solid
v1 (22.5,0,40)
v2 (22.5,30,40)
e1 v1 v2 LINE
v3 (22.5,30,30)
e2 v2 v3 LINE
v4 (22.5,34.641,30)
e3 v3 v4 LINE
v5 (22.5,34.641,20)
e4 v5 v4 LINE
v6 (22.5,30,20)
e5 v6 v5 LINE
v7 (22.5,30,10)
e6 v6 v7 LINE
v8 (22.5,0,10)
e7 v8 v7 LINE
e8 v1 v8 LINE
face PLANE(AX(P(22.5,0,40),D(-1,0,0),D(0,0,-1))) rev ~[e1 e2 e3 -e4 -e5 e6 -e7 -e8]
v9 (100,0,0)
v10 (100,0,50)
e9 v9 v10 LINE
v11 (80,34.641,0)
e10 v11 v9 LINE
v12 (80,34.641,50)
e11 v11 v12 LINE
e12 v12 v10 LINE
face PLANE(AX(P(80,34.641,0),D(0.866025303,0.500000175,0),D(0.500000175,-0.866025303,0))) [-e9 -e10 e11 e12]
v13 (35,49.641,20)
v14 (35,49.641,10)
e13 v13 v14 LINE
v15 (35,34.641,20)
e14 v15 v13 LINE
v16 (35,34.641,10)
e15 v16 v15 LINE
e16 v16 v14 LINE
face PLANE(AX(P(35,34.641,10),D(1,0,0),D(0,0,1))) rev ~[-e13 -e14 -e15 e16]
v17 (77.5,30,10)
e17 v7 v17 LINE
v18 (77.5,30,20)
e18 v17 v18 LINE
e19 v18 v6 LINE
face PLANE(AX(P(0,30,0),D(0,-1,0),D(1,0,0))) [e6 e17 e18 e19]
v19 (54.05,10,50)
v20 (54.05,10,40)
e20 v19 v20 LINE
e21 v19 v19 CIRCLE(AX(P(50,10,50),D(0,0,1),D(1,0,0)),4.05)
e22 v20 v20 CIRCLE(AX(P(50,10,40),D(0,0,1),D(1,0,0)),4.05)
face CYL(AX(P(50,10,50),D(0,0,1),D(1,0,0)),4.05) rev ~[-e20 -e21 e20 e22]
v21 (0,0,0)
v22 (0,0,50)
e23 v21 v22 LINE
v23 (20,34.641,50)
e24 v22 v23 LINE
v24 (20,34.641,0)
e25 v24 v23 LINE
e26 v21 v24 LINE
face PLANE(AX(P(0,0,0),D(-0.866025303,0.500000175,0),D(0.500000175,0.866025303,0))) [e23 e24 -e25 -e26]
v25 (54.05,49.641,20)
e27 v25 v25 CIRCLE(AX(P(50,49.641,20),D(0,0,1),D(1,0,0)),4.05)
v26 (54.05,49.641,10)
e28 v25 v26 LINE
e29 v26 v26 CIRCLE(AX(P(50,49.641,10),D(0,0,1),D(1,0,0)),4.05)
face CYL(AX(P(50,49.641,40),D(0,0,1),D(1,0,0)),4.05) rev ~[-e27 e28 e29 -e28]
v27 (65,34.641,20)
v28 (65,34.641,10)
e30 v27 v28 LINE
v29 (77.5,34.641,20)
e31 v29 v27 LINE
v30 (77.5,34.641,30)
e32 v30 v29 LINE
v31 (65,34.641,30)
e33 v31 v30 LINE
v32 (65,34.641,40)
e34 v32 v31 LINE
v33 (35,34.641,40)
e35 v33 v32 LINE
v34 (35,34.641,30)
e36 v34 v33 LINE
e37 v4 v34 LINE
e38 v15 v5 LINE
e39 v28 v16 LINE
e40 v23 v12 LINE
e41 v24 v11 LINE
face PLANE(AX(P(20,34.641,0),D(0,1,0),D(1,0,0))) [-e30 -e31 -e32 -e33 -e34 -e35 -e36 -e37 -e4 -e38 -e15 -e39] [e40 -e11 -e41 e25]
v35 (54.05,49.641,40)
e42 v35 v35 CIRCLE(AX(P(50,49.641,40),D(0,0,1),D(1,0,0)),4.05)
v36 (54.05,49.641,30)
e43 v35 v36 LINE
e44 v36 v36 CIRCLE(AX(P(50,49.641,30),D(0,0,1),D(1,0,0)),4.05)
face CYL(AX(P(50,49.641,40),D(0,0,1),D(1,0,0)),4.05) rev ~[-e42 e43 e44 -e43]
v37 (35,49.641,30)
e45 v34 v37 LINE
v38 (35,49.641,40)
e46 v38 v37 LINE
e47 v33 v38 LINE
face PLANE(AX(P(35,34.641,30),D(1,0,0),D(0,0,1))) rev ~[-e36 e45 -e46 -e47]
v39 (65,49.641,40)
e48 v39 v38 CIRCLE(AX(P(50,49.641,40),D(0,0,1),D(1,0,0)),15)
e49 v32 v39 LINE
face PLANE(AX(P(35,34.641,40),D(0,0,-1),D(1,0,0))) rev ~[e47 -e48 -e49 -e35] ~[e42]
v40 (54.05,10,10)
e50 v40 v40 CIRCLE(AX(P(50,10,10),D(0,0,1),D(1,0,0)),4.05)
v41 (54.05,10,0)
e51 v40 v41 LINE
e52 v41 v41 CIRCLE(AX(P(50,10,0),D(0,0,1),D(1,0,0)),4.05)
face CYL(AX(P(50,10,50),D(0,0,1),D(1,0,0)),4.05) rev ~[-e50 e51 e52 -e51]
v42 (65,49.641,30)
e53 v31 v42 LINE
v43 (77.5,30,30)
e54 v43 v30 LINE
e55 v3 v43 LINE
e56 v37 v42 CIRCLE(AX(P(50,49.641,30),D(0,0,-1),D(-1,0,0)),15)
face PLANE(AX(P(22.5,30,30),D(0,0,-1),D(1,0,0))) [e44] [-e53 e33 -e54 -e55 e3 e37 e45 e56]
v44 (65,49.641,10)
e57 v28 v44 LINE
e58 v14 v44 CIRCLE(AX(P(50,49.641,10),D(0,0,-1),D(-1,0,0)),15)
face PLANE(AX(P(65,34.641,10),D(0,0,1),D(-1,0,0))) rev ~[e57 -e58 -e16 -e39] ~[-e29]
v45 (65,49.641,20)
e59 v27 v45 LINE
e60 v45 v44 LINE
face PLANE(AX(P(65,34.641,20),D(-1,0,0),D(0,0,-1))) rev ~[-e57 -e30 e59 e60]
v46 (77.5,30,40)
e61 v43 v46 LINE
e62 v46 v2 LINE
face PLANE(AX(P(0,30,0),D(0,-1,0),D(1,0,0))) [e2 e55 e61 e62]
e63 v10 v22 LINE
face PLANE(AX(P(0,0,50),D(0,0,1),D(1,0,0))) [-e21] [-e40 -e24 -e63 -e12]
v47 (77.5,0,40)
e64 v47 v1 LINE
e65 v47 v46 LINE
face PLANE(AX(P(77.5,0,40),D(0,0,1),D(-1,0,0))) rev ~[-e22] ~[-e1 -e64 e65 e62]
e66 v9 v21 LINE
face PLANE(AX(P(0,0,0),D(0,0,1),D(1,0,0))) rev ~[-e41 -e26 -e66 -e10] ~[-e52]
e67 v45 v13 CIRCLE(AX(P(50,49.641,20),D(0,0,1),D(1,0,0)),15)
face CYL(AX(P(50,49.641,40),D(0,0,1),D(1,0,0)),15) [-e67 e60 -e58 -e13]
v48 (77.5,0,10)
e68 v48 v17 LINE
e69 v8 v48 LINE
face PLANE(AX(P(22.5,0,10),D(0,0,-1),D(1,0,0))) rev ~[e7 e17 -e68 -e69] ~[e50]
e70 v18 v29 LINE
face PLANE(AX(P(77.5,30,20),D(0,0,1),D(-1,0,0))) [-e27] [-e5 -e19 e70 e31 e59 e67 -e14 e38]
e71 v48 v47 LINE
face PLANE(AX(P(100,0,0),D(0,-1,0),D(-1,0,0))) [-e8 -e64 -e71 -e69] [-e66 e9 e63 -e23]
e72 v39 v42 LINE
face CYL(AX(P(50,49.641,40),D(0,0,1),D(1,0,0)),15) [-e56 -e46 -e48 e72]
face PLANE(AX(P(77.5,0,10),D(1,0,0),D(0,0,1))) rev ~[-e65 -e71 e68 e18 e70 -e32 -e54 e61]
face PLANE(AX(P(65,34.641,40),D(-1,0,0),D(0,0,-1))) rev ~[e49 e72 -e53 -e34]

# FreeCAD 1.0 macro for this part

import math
import FreeCAD as App
import Part
import Sketcher

V = App.Vector


def add_polygon(sketch, points):
    """Adds a closed chain of lines whose ends are joined by coincident constraints."""
    first, n = sketch.GeometryCount, len(points)
    for a, b in zip(points, points[1:] + points[:1]):
        sketch.addGeometry(Part.LineSegment(App.Vector(*a, 0), App.Vector(*b, 0)), False)
    for i in range(n):
        sketch.addConstraint(Sketcher.Constraint("Coincident", first + i, 2, first + (i + 1) % n, 1))

doc = App.newDocument("Part")
body = doc.addObject("PartDesign::Body", "Body")

sketch1 = body.newObject("Sketcher::SketchObject", "Sketch")
sketch1.AttachmentSupport = (doc.getObject("XY_Plane"), [""])
sketch1.MapMode = "FlatFace"
add_polygon(sketch1, [(20, 35), (0, 0), (100, 0), (80, 35)])
sketch1.addConstraint([
    Sketcher.Constraint("Horizontal", 1),
    Sketcher.Constraint("Horizontal", 3),
    Sketcher.Constraint("Coincident", 0, 2, -1, 1),
    Sketcher.Constraint("Equal", 0, 2),
    Sketcher.Constraint("DistanceX", 1, 1, 1, 2, 100.0),
    Sketcher.Constraint("DistanceX", 3, 2, 3, 1, 60.0),
    Sketcher.Constraint("Distance", 0, 40.0),
])
pad1 = body.newObject("PartDesign::Pad", "Pad")
pad1.Profile = sketch1
pad1.Length = 50

sketch2 = body.newObject("Sketcher::SketchObject", "Sketch001")
sketch2.AttachmentSupport = (doc.getObject("XZ_Plane"), [""])
sketch2.MapMode = "FlatFace"
sketch2.AttachmentOffset = App.Placement(V(0, 0, -34.641), App.Rotation())
add_polygon(sketch2, [(65, 20), (65, 10), (35, 10), (35, 20)])
add_polygon(sketch2, [(65, 40), (65, 30), (35, 30), (35, 40)])
sketch2.addConstraint([
    Sketcher.Constraint("Vertical", 0),
    Sketcher.Constraint("Horizontal", 1),
    Sketcher.Constraint("Vertical", 2),
    Sketcher.Constraint("Horizontal", 3),
    Sketcher.Constraint("Vertical", 4),
    Sketcher.Constraint("Horizontal", 5),
    Sketcher.Constraint("Vertical", 6),
    Sketcher.Constraint("Horizontal", 7),
    Sketcher.Constraint("Vertical", 3, 2, 4, 2),
    Sketcher.Constraint("Vertical", 2, 2, 5, 2),
    Sketcher.Constraint("Equal", 2, 4),
    Sketcher.Constraint("DistanceX", 1, 2, 1, 1, 30.0),
    Sketcher.Constraint("DistanceY", 0, 2, 0, 1, 10.0),
    Sketcher.Constraint("DistanceY", -1, 1, 0, 2, 10.0),
    Sketcher.Constraint("DistanceY", -1, 1, 4, 2, 30.0),
    Sketcher.Constraint("DistanceX", -1, 1, 0, 2, 65.0),
])
pad2 = body.newObject("PartDesign::Pad", "Pad001")
pad2.Profile = sketch2
pad2.Length = 30
pad2.Reversed = True

sketch3 = body.newObject("Sketcher::SketchObject", "Sketch002")
sketch3.AttachmentSupport = (doc.getObject("XZ_Plane"), [""])
sketch3.MapMode = "FlatFace"
add_polygon(sketch3, [(22, 40), (22, 10), (78, 10), (78, 40)])
sketch3.addConstraint([
    Sketcher.Constraint("Vertical", 0),
    Sketcher.Constraint("Horizontal", 1),
    Sketcher.Constraint("Vertical", 2),
    Sketcher.Constraint("Horizontal", 3),
    Sketcher.Constraint("DistanceX", 1, 1, 1, 2, 55.0),
    Sketcher.Constraint("DistanceY", 0, 2, 0, 1, 30.0),
    Sketcher.Constraint("DistanceY", -1, 1, 0, 2, 10.0),
    Sketcher.Constraint("DistanceX", -1, 1, 0, 2, 22.5),
])
pocket1 = body.newObject("PartDesign::Pocket", "Pocket")
pocket1.Profile = sketch3
pocket1.Length = 30

sketch4 = body.newObject("Sketcher::SketchObject", "Sketch003")
sketch4.AttachmentSupport = (doc.getObject("XY_Plane"), [""])
sketch4.MapMode = "FlatFace"
sketch4.AttachmentOffset = App.Placement(V(0, 0, 50), App.Rotation())
sketch4.addGeometry(Part.Circle(V(50, 10, 0), V(0, 0, 1), 4), False)
sketch4.addConstraint([
    Sketcher.Constraint("Diameter", 0, 8.1),
    Sketcher.Constraint("DistanceX", -1, 1, 0, 3, 50.0),
    Sketcher.Constraint("DistanceY", -1, 1, 0, 3, 10.0),
])
pocket2 = body.newObject("PartDesign::Pocket", "Pocket001")
pocket2.Profile = sketch4
pocket2.Length = 50

sketch5 = body.newObject("Sketcher::SketchObject", "Sketch004")
sketch5.AttachmentSupport = (doc.getObject("XY_Plane"), [""])
sketch5.MapMode = "FlatFace"
sketch5.AttachmentOffset = App.Placement(V(0, 0, 40), App.Rotation())
sketch5.addGeometry([
    Part.Circle(V(50, 49.6, 0), V(0, 0, 1), 4),
    Part.ArcOfCircle(Part.Circle(V(50, 49.6, 0), V(0, 0, 1), 15), math.radians(0), math.radians(90)),
    Part.LineSegment(V(65, 49.6, 0), V(65, 64.6, 0)),
    Part.LineSegment(V(65, 64.6, 0), V(50, 64.6, 0)),
    Part.ArcOfCircle(Part.Circle(V(50, 49.6, 0), V(0, 0, 1), 15), math.radians(90), math.radians(180)),
    Part.LineSegment(V(50, 64.6, 0), V(35, 64.6, 0)),
    Part.LineSegment(V(35, 64.6, 0), V(35, 49.6, 0)),
], False)
sketch5.addConstraint([
    Sketcher.Constraint("Tangent", 1, 1, 2, 1),
    Sketcher.Constraint("Coincident", 2, 2, 3, 1),
    Sketcher.Constraint("Tangent", 3, 2, 1, 2),
    Sketcher.Constraint("Tangent", 4, 1, 5, 1),
    Sketcher.Constraint("Coincident", 5, 2, 6, 1),
    Sketcher.Constraint("Tangent", 6, 2, 4, 2),
    Sketcher.Constraint("Vertical", 2),
    Sketcher.Constraint("Horizontal", 3),
    Sketcher.Constraint("Horizontal", 5),
    Sketcher.Constraint("Vertical", 6),
    Sketcher.Constraint("Coincident", 1, 3, 0, 3),
    Sketcher.Constraint("Coincident", 4, 3, 0, 3),
    Sketcher.Constraint("Equal", 1, 4),
    Sketcher.Constraint("Radius", 1, 15.0),
    Sketcher.Constraint("Diameter", 0, 8.1),
    Sketcher.Constraint("DistanceX", -1, 1, 0, 3, 50.0),
    Sketcher.Constraint("DistanceY", -1, 1, 0, 3, 49.641),
])
pocket3 = body.newObject("PartDesign::Pocket", "Pocket002")
pocket3.Profile = sketch5
pocket3.Length = 30

sketch6 = body.newObject("Sketcher::SketchObject", "Sketch005")
sketch6.AttachmentSupport = (doc.getObject("XZ_Plane"), [""])
sketch6.MapMode = "FlatFace"
sketch6.AttachmentOffset = App.Placement(V(0, 0, -30), App.Rotation())
add_polygon(sketch6, [(78, 20), (78, 30), (22, 30), (22, 20)])
sketch6.addConstraint([
    Sketcher.Constraint("Vertical", 0),
    Sketcher.Constraint("Horizontal", 1),
    Sketcher.Constraint("Vertical", 2),
    Sketcher.Constraint("Horizontal", 3),
    Sketcher.Constraint("DistanceY", 0, 1, 0, 2, 10.0),
    Sketcher.Constraint("DistanceX", 1, 2, 1, 1, 55.0),
    Sketcher.Constraint("DistanceY", -1, 1, 0, 2, 30.0),
    Sketcher.Constraint("DistanceX", -1, 1, 0, 2, 77.5),
])
pocket4 = body.newObject("PartDesign::Pocket", "Pocket003")
pocket4.Profile = sketch6
pocket4.Length = 4.641

doc.recompute()
